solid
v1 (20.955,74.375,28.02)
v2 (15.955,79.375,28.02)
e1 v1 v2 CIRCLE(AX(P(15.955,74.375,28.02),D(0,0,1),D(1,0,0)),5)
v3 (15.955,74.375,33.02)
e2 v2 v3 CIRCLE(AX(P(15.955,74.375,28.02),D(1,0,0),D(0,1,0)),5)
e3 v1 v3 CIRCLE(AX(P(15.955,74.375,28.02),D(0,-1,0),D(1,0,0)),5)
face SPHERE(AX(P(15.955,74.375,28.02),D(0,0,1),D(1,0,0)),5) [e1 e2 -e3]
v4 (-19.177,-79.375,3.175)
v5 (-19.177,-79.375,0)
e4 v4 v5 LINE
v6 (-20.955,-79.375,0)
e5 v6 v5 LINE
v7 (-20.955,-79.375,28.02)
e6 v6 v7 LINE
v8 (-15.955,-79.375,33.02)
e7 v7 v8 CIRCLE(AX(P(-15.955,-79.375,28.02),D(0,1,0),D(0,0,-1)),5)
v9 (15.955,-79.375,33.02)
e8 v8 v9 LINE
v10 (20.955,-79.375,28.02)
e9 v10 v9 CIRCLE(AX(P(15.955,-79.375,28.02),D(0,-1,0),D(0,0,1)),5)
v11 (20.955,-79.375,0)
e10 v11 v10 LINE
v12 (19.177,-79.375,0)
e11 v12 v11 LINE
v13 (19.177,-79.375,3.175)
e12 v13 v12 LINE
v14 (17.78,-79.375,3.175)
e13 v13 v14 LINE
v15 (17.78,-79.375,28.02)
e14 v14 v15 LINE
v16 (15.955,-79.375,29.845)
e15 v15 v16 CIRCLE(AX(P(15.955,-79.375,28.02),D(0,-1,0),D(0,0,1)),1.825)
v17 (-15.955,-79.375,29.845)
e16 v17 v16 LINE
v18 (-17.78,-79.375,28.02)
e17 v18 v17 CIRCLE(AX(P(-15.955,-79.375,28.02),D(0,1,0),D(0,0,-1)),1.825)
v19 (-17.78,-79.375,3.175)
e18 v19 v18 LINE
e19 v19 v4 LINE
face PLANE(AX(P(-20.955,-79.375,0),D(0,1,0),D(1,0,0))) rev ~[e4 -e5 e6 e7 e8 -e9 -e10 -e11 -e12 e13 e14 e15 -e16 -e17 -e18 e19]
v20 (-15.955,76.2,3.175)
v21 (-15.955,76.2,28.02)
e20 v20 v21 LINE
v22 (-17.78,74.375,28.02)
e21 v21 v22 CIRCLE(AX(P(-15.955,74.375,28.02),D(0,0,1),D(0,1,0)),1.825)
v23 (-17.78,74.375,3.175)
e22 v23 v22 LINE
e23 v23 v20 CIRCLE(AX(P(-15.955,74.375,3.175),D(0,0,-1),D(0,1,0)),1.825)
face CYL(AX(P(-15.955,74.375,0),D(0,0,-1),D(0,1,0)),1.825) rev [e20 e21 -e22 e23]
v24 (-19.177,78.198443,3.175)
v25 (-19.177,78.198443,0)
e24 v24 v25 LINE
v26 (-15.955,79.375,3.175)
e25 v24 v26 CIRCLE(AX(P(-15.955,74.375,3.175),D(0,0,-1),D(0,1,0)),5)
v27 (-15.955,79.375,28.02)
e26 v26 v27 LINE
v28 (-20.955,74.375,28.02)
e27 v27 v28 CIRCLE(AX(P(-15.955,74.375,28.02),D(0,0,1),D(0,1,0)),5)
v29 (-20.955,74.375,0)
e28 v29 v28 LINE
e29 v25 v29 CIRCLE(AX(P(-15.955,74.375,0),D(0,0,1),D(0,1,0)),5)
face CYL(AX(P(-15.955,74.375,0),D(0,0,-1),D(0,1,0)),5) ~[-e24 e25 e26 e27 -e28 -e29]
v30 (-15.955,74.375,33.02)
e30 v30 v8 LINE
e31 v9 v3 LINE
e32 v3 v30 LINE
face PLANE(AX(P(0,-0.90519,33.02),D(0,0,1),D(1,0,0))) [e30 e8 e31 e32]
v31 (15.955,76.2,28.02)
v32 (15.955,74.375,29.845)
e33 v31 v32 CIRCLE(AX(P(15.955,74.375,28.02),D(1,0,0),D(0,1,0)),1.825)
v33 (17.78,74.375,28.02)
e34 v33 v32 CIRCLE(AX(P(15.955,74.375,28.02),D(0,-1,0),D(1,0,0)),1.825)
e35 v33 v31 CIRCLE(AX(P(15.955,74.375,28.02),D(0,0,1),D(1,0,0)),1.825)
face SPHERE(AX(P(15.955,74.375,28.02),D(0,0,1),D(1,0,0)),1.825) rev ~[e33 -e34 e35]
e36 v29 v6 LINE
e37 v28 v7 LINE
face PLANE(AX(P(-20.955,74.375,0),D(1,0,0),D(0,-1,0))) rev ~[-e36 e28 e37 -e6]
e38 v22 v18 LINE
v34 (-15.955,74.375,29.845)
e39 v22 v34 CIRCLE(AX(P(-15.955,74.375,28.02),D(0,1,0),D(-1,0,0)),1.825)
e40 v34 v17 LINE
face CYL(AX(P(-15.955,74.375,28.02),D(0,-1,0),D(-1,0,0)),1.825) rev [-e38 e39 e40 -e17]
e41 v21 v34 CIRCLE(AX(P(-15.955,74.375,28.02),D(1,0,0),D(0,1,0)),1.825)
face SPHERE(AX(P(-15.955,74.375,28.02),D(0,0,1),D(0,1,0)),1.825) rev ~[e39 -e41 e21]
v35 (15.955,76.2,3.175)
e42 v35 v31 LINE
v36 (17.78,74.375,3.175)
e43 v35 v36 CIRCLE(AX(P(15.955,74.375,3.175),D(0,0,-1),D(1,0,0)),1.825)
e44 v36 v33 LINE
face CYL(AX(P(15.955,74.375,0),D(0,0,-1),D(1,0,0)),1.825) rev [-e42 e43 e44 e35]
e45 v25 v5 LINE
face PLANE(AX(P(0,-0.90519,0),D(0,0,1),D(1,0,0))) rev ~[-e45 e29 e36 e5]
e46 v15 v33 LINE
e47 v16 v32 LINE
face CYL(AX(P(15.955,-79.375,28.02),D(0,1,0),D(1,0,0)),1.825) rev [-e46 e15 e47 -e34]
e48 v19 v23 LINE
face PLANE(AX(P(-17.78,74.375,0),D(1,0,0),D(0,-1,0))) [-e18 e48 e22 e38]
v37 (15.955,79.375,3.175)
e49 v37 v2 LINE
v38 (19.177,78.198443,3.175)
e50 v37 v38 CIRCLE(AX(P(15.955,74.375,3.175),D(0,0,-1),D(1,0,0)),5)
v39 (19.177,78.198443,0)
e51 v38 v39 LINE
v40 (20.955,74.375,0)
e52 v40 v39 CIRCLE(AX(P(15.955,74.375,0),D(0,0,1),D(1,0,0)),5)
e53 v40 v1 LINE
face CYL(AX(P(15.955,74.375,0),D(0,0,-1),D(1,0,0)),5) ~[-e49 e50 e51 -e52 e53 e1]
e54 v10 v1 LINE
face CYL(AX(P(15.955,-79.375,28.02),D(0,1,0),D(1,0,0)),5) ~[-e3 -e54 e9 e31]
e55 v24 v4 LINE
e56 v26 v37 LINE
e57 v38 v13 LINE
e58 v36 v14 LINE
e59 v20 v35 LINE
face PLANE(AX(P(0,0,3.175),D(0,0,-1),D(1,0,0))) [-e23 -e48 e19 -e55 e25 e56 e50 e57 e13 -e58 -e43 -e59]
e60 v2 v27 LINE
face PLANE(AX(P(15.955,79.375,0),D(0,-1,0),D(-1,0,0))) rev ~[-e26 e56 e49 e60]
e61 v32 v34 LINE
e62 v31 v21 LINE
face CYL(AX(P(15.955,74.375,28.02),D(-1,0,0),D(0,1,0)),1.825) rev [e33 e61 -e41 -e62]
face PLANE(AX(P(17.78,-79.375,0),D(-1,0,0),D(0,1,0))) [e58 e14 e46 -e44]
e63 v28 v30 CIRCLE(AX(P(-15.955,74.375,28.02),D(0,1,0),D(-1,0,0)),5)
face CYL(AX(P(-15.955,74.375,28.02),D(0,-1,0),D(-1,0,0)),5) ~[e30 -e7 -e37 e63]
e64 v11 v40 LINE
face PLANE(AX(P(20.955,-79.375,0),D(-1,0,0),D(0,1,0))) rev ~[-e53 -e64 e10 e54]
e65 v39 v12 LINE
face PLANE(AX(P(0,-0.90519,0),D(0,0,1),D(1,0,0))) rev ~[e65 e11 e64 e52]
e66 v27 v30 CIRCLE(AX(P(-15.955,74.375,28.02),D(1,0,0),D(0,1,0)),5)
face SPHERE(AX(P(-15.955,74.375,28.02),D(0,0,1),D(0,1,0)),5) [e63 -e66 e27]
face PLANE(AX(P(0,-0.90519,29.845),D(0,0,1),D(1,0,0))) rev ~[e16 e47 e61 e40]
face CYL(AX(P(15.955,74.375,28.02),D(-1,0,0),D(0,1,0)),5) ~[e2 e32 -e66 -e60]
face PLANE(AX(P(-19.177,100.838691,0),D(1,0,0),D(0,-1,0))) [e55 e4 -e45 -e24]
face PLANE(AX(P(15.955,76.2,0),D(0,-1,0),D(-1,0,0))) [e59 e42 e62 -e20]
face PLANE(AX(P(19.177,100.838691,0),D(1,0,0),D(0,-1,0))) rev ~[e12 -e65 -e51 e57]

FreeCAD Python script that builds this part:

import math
import FreeCAD as App
import Part
import Sketcher

V = App.Vector
Q = App.Units.Quantity


def edges_at(feature, points):
    """Names of the edges that pass closest to the given points."""
    edges = feature.Shape.Edges
    near = lambda p: min(range(len(edges)), key=lambda i: edges[i].distToShape(Part.Vertex(*p))[0])
    return sorted({f"Edge{near(p) + 1}" for p in points})


def faces_at(feature, points):
    """Names of the faces that lie closest to the given points."""
    faces = feature.Shape.Faces
    near = lambda p: min(range(len(faces)), key=lambda i: faces[i].distToShape(Part.Vertex(*p))[0])
    return sorted({f"Face{near(p) + 1}" for p in points})

doc = App.newDocument("Part")
params = doc.addObject("Spreadsheet::Sheet", "Params")
for row, (alias, value) in enumerate([
    ("sketch1_width", "1.65 in"),
    ("pad1_length", "1.3 in"),
    ("fillet_radius", "5 mm"),
    ("thickness_wall", "0.125 in"),
    ("sketch2_width", "1.51 in"),
    ("pocket1_length", "0.125 in"),
], start=1):
    params.set(f"A{row}", alias)
    params.set(f"B{row}", "=" + value)
    params.setAlias(f"B{row}", alias)

body = doc.addObject("PartDesign::Body", "Body")

# Sketch on XY plane
sketch1 = doc.addObject("Sketcher::SketchObject", "Sketch")
body.addObject(sketch1)
sketch1.AttachmentSupport = (doc.XY_Plane, [""])
sketch1.MapMode = "FlatFace"
sketch1.addGeometry(Part.ArcOfCircle(Part.Circle(V(15.955, 74.375, 0), V(0, 0, 1), 5), math.radians(0), math.radians(90)), False)
sketch1.addGeometry(Part.LineSegment(V(15.955, 79.375, 0), V(-15.955, 79.375, 0)), False)
sketch1.addGeometry(Part.ArcOfCircle(Part.Circle(V(-15.955, 74.375, 0), V(0, 0, 1), 5), math.radians(90), math.radians(180)), False)
sketch1.addGeometry(Part.LineSegment(V(-20.955, 74.375, 0), V(-20.955, -79.375, 0)), False)
sketch1.addGeometry(Part.LineSegment(V(-20.955, -79.375, 0), V(20.955, -79.375, 0)), False)
sketch1.addGeometry(Part.LineSegment(V(20.955, -79.375, 0), V(20.955, 74.375, 0)), False)
sketch1.addConstraint(Sketcher.Constraint("Tangent", 0, 2, 1, 1))
sketch1.addConstraint(Sketcher.Constraint("Tangent", 1, 2, 2, 1))
sketch1.addConstraint(Sketcher.Constraint("Tangent", 2, 2, 3, 1))
sketch1.addConstraint(Sketcher.Constraint("Coincident", 3, 2, 4, 1))
sketch1.addConstraint(Sketcher.Constraint("Coincident", 4, 2, 5, 1))
sketch1.addConstraint(Sketcher.Constraint("Tangent", 5, 2, 0, 1))
sketch1.addConstraint(Sketcher.Constraint("Horizontal", 1))
sketch1.addConstraint(Sketcher.Constraint("Vertical", 3))
sketch1.addConstraint(Sketcher.Constraint("Horizontal", 4))
sketch1.addConstraint(Sketcher.Constraint("Vertical", 5))
sketch1.addConstraint(Sketcher.Constraint("Equal", 0, 2))
sketch1.addConstraint(Sketcher.Constraint("DistanceX", 4, 1, 4, 2, Q("1.65 in")))
sketch1.addConstraint(Sketcher.Constraint("Radius", 0, 5.0))
sketch1.addConstraint(Sketcher.Constraint("DistanceY", 3, 2, 1, 2, Q("6.25 in")))
sketch1.addConstraint(Sketcher.Constraint("DistanceY", -1, 1, 0, 2, Q("3.125 in")))
sketch1.addConstraint(Sketcher.Constraint("DistanceX", 2, 2, -1, 1, Q("0.825 in")))
sketch1.setExpression("Constraints[11]", "Params.sketch1_width")
pad1 = doc.addObject("PartDesign::Pad", "Pad")
body.addObject(pad1)
pad1.Profile = sketch1
pad1.setExpression("Length", "Params.pad1_length")
doc.recompute()

fillet = doc.addObject("PartDesign::Fillet", "Fillet")
body.addObject(fillet)
fillet.Base = (pad1, edges_at(pad1, [(-20.955, -2.5, 33.02), (0, 79.375, 33.02)]))
fillet.setExpression("Radius", "Params.fillet_radius")
doc.recompute()

thickness = doc.addObject("PartDesign::Thickness", "Thickness")
body.addObject(thickness)
thickness.Base = (fillet, faces_at(fillet, [(0, -79.375, 16.51), (0, 0, 0)]))
thickness.setExpression("Value", "Params.thickness_wall")
thickness.Reversed = True
thickness.Join = "Arc"

# Sketch on XY plane
sketch2 = doc.addObject("Sketcher::SketchObject", "Sketch001")
body.addObject(sketch2)
sketch2.AttachmentSupport = (doc.XY_Plane, [""])
sketch2.MapMode = "FlatFace"
sketch2.addGeometry(Part.LineSegment(V(-19.177, -100.838691, 0), V(-19.177, 100.838691, 0)), False)
sketch2.addGeometry(Part.LineSegment(V(-19.177, 100.838691, 0), V(19.177, 100.838691, 0)), False)
sketch2.addGeometry(Part.LineSegment(V(19.177, 100.838691, 0), V(19.177, -100.838691, 0)), False)
sketch2.addGeometry(Part.LineSegment(V(19.177, -100.838691, 0), V(-19.177, -100.838691, 0)), False)
sketch2.addConstraint(Sketcher.Constraint("Coincident", 0, 2, 1, 1))
sketch2.addConstraint(Sketcher.Constraint("Coincident", 1, 2, 2, 1))
sketch2.addConstraint(Sketcher.Constraint("Coincident", 2, 2, 3, 1))
sketch2.addConstraint(Sketcher.Constraint("Coincident", 3, 2, 0, 1))
sketch2.addConstraint(Sketcher.Constraint("Vertical", 0))
sketch2.addConstraint(Sketcher.Constraint("Horizontal", 1))
sketch2.addConstraint(Sketcher.Constraint("Vertical", 2))
sketch2.addConstraint(Sketcher.Constraint("Horizontal", 3))
sketch2.addConstraint(Sketcher.Constraint("Symmetric", 0, 2, 2, 2, -1, 1))
sketch2.addConstraint(Sketcher.Constraint("DistanceX", 1, 1, 1, 2, Q("1.51 in")))
sketch2.addConstraint(Sketcher.Constraint("DistanceY", 0, 1, 0, 2, 201.677382))
sketch2.setExpression("Constraints[9]", "Params.sketch2_width")
pocket1 = doc.addObject("PartDesign::Pocket", "Pocket")
body.addObject(pocket1)
pocket1.Profile = sketch2
pocket1.setExpression("Length", "Params.pocket1_length")
pocket1.Reversed = True

doc.recompute()
